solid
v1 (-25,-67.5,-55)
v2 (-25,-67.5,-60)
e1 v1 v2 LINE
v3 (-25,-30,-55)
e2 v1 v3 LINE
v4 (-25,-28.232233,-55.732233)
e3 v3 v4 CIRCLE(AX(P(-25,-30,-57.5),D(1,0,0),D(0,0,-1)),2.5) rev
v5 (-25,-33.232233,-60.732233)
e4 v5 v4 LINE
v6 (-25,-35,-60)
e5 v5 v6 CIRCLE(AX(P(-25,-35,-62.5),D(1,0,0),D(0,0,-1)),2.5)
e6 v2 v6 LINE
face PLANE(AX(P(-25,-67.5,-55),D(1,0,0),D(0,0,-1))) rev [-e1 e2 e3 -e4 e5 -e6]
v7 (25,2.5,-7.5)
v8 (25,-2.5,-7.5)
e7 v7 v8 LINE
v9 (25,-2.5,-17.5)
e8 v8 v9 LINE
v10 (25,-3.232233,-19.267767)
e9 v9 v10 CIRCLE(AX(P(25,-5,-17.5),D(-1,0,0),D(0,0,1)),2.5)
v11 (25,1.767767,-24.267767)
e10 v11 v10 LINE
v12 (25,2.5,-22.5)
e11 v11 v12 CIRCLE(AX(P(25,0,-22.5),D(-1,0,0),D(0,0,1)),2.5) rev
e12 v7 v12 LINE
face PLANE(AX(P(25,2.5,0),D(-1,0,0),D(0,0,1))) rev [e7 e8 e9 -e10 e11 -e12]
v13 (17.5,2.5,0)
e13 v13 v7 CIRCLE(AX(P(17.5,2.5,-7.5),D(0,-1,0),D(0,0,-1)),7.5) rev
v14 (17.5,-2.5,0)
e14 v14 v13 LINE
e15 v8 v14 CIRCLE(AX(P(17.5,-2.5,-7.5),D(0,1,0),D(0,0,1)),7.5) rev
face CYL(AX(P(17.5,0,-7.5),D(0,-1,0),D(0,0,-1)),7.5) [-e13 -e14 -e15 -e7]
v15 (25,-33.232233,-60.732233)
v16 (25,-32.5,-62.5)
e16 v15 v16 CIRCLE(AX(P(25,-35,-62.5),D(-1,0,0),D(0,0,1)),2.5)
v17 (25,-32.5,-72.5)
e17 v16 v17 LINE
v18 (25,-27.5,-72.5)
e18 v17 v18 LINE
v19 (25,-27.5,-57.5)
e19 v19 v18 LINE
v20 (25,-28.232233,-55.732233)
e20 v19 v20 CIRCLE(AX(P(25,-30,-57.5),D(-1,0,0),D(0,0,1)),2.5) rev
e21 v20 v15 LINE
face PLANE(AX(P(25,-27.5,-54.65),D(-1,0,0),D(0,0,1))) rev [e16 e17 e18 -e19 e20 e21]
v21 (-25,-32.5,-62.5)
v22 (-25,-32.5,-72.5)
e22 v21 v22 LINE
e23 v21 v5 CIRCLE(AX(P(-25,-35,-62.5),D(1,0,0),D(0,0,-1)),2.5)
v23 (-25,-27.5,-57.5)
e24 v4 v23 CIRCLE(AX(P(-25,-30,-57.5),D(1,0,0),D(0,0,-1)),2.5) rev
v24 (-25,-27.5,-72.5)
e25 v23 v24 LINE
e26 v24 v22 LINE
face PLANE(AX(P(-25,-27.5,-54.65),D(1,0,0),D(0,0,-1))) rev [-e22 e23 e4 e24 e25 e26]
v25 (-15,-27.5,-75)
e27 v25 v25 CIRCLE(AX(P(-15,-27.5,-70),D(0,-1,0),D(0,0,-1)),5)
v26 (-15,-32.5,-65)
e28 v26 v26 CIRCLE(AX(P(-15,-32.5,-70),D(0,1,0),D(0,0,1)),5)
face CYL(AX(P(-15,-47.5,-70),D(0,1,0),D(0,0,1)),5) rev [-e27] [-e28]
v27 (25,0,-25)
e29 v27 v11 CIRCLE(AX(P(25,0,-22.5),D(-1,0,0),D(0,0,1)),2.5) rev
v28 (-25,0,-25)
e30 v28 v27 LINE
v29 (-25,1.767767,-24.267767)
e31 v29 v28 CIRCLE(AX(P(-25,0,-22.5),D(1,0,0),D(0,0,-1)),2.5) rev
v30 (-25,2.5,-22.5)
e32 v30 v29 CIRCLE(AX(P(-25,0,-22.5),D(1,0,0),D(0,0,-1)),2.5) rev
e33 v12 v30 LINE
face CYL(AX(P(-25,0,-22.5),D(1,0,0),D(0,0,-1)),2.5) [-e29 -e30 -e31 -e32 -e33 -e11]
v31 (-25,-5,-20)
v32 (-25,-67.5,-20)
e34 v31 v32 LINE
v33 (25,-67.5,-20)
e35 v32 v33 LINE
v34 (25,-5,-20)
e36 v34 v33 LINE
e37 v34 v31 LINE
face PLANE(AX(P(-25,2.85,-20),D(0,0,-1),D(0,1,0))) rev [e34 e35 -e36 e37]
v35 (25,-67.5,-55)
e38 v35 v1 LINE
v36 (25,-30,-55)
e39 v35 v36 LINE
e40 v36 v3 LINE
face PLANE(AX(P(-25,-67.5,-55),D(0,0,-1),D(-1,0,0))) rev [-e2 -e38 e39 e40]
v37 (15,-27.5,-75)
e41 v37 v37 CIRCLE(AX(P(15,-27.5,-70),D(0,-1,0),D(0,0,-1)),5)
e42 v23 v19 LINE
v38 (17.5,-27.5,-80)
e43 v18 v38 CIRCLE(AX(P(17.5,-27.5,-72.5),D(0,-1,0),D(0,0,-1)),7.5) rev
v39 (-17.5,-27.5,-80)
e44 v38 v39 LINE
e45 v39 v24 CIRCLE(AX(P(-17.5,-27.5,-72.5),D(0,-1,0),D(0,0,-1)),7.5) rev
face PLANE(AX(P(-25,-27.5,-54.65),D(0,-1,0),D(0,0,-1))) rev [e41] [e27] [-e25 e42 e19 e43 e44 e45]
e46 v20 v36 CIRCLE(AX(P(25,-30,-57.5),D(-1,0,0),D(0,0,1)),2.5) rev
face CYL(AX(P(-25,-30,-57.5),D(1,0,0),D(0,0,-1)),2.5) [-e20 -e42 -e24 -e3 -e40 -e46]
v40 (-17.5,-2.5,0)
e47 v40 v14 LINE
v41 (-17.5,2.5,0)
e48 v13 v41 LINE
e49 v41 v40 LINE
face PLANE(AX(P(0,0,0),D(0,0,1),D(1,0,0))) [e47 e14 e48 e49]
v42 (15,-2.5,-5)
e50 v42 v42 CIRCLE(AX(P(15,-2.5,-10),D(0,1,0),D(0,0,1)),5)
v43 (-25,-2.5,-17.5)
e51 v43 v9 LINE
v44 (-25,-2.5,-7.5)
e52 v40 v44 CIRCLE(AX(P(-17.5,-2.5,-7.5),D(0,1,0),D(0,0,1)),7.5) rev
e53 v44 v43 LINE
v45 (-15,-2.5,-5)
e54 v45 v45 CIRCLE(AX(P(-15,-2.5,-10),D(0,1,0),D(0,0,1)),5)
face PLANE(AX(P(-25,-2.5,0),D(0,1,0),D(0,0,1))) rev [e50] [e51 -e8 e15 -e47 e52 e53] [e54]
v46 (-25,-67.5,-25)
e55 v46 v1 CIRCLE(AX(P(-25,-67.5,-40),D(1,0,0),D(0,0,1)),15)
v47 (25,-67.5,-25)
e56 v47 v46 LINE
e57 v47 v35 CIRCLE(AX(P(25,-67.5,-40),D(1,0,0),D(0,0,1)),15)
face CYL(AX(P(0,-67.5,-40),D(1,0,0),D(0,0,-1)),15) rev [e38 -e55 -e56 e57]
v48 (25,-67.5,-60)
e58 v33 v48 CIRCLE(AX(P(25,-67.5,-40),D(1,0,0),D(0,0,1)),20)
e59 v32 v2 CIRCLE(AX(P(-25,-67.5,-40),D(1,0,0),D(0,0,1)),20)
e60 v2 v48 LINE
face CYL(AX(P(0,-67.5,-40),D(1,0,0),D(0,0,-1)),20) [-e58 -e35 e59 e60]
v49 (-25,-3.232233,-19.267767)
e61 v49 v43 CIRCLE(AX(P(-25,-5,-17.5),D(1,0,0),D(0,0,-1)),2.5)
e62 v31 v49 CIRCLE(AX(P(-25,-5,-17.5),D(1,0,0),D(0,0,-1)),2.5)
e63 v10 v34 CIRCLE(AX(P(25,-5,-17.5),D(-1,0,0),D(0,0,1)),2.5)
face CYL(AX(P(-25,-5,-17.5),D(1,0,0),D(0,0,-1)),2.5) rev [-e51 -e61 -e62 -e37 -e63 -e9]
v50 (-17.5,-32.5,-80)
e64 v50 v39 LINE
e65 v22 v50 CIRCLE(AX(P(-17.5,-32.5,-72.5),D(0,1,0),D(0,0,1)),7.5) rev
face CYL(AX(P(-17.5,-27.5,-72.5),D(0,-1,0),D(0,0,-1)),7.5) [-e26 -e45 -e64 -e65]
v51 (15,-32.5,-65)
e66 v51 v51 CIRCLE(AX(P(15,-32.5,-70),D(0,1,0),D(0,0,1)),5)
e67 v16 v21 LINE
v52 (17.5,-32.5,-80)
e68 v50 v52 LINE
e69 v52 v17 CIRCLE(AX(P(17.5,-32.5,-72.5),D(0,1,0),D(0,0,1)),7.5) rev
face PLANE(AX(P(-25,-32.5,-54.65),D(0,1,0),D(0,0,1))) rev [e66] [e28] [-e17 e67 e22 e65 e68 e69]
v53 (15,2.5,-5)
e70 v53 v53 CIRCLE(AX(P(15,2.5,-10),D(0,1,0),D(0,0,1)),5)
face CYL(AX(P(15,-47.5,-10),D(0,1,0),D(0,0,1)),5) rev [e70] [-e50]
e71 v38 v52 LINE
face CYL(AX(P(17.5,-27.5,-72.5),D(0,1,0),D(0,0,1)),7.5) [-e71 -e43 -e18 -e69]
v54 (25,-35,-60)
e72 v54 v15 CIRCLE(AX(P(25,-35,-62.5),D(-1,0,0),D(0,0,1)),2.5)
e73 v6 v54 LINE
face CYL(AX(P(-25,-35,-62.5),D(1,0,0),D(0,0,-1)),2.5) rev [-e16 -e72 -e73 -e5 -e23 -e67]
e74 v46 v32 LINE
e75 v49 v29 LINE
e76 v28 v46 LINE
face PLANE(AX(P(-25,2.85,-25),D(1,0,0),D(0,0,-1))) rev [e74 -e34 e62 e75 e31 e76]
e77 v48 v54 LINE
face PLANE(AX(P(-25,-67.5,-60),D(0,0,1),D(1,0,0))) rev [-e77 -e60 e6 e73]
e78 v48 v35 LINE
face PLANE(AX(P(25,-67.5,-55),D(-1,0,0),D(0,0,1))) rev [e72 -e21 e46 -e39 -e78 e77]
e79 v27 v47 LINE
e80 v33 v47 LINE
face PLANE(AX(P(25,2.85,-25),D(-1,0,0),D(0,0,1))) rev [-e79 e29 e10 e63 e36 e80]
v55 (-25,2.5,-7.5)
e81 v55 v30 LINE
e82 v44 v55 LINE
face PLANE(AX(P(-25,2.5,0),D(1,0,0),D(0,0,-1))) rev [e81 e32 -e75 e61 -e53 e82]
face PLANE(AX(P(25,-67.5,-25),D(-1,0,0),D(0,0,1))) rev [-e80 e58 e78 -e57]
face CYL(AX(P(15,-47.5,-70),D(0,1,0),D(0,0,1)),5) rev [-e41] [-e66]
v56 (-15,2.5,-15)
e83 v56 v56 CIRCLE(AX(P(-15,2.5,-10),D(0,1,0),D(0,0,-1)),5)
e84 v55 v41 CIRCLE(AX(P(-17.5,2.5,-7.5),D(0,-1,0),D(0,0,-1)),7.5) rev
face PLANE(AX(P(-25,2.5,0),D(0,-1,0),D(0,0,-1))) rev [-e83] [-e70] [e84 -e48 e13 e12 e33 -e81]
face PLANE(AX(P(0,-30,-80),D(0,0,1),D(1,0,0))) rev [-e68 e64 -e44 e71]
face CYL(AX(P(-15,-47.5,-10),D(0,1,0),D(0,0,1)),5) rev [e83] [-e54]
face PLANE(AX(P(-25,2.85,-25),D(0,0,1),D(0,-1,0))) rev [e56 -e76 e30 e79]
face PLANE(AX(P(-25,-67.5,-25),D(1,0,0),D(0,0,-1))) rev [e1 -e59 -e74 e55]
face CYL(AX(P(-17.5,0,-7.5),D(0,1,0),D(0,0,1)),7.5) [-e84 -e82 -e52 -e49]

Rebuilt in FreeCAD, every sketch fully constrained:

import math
import FreeCAD as App
import Part
import Sketcher


def edges_at(feature, points):
    """Names of the edges that pass closest to the given points."""
    edges = feature.Shape.Edges
    near = lambda p: min(range(len(edges)), key=lambda i: edges[i].distToShape(Part.Vertex(*p))[0])
    return sorted({f"Edge{near(p) + 1}" for p in points})


def add_polygon(sketch, points):
    """Adds a closed chain of lines whose ends are joined by coincident constraints."""
    first, n = sketch.GeometryCount, len(points)
    for a, b in zip(points, points[1:] + points[:1]):
        sketch.addGeometry(Part.LineSegment(App.Vector(*a, 0), App.Vector(*b, 0)), False)
    for i in range(n):
        sketch.addConstraint(Sketcher.Constraint("Coincident", first + i, 2, first + (i + 1) % n, 1))

doc = App.newDocument("Part")
body = doc.addObject("PartDesign::Body", "Body")

sketch1 = doc.addObject("Sketcher::SketchObject", "Sketch")
body.addObject(sketch1)
sketch1.AttachmentSupport = (doc.XY_Plane, [""])
sketch1.MapMode = "FlatFace"
add_polygon(sketch1, [(-25, 2.5), (-25, -2.5), (25, -2.5), (25, 2.5)])
sketch1.addConstraint([
    Sketcher.Constraint("Vertical", 0),
    Sketcher.Constraint("Horizontal", 1),
    Sketcher.Constraint("Vertical", 2),
    Sketcher.Constraint("Horizontal", 3),
    Sketcher.Constraint("Symmetric", 0, 2, 2, 2, -1, 1),
    Sketcher.Constraint("DistanceX", 1, 1, 1, 2, 50.0),
    Sketcher.Constraint("DistanceY", 0, 2, 0, 1, 5.0),
])

sketch2 = doc.addObject("Sketcher::SketchObject", "Sketch001")
body.addObject(sketch2)
sketch2.AttachmentSupport = (doc.YZ_Plane, [""])
sketch2.MapMode = "FlatFace"
sketch2.addGeometry([
    Part.LineSegment(App.Vector(0, 0, 0), App.Vector(0, -22.5, 0)),
    Part.LineSegment(App.Vector(0, -22.5, 0), App.Vector(-67.5, -22.5, 0)),
    Part.ArcOfCircle(Part.Circle(App.Vector(-67.5, -40, 0), App.Vector(0, 0, 1), 17.5), math.radians(90), math.radians(270)),
    Part.LineSegment(App.Vector(-67.5, -57.5, 0), App.Vector(-30, -57.5, 0)),
    Part.LineSegment(App.Vector(-30, -57.5, 0), App.Vector(-30, -80, 0)),
], False)
sketch2.addConstraint([
    Sketcher.Constraint("Coincident", 0, 2, 1, 1),
    Sketcher.Constraint("Tangent", 1, 2, 2, 1),
    Sketcher.Constraint("Tangent", 2, 2, 3, 1),
    Sketcher.Constraint("Coincident", 3, 2, 4, 1),
    Sketcher.Constraint("Vertical", 0),
    Sketcher.Constraint("Horizontal", 1),
    Sketcher.Constraint("Horizontal", 3),
    Sketcher.Constraint("Vertical", 4),
    Sketcher.Constraint("Coincident", 0, 1, -1, 1),
    Sketcher.Constraint("Equal", 0, 4),
    Sketcher.Constraint("Radius", 2, 17.5),
    Sketcher.Constraint("DistanceX", 1, 2, 1, 1, 67.5),
    Sketcher.Constraint("DistanceX", 3, 1, 3, 2, 37.5),
    Sketcher.Constraint("DistanceY", 0, 2, 0, 1, 22.5),
])
doc.recompute()

additivepipe = doc.addObject("PartDesign::AdditivePipe", "AdditivePipe")
body.addObject(additivepipe)
additivepipe.Profile = sketch1
additivepipe.Spine = (sketch2, ["Edge1", "Edge2", "Edge3", "Edge4", "Edge5"])
additivepipe.Transition = "Right corner"
doc.recompute()

fillet = doc.addObject("PartDesign::Fillet", "Fillet")
body.addObject(fillet)
fillet.Base = (additivepipe, edges_at(additivepipe, [
    (0, 2.5, -25),
    (0, -2.5, -20),
    (0, -27.5, -55),
    (0, -32.5, -60),
]))
fillet.Radius = 2.5

sketch3 = doc.addObject("Sketcher::SketchObject", "Sketch002")
body.addObject(sketch3)
sketch3.AttachmentSupport = (doc.XZ_Plane, [""])
sketch3.MapMode = "FlatFace"
sketch3.AttachmentOffset = App.Placement(App.Vector(0, 0, -2.5), App.Rotation())
sketch3.addGeometry([
    Part.Circle(App.Vector(-15, -70, 0), App.Vector(0, 0, 1), 5),
    Part.Circle(App.Vector(15, -70, 0), App.Vector(0, 0, 1), 5),
    Part.Circle(App.Vector(15, -10, 0), App.Vector(0, 0, 1), 5),
    Part.Circle(App.Vector(-15, -10, 0), App.Vector(0, 0, 1), 5),
], False)
sketch3.addConstraint([
    Sketcher.Constraint("Equal", 0, 1),
    Sketcher.Constraint("Equal", 1, 2),
    Sketcher.Constraint("Equal", 2, 3),
    Sketcher.Constraint("Symmetric", 0, 3, 1, 3, -2),
    Sketcher.Constraint("Symmetric", 2, 3, 3, 3, -2),
    Sketcher.Constraint("Vertical", 1, 3, 2, 3),
    Sketcher.Constraint("Diameter", 0, 10.0),
    Sketcher.Constraint("DistanceX", 0, 3, -1, 1, 15.0),
    Sketcher.Constraint("DistanceY", 0, 3, -1, 1, 70.0),
    Sketcher.Constraint("DistanceY", 2, 3, -1, 1, 10.0),
])
pocket1 = doc.addObject("PartDesign::Pocket", "Pocket")
body.addObject(pocket1)
pocket1.Profile = sketch3
pocket1.Length = 50
pocket1.Reversed = True
doc.recompute()

fillet2 = doc.addObject("PartDesign::Fillet", "Fillet001")
body.addObject(fillet2)
fillet2.Base = (pocket1, edges_at(pocket1, [
    (25, 0, 0),
    (-25, -30, -80),
    (25, -30, -80),
    (-25, 0, 0),
]))
fillet2.Radius = 7.5

doc.recompute()
